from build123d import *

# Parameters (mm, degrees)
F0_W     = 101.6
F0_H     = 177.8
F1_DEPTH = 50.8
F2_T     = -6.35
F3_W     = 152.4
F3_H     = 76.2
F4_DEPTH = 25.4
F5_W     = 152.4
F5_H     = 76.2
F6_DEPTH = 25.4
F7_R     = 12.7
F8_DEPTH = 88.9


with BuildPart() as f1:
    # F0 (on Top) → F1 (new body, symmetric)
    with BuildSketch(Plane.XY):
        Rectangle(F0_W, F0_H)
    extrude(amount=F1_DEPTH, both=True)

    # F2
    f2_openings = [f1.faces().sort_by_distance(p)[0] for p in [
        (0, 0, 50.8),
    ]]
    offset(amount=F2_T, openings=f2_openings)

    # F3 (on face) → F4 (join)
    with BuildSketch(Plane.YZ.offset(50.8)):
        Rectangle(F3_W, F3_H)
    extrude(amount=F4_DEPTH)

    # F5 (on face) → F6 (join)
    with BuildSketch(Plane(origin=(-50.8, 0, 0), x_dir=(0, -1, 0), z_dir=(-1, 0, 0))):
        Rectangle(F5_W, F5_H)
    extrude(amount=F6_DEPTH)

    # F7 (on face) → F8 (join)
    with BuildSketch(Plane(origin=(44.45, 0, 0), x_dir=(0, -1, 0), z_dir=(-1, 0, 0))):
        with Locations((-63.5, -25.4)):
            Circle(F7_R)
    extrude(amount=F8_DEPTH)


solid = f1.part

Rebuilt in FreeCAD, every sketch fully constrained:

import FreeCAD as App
import Part
import Sketcher
Q = App.Units.Quantity


def faces_at(feature, points):
    """Names of the faces that lie closest to the given points."""
    faces = feature.Shape.Faces
    near = lambda p: min(range(len(faces)), key=lambda i: faces[i].distToShape(Part.Vertex(*p))[0])
    return sorted({f"Face{near(p) + 1}" for p in points})


def add_polygon(sketch, points):
    """Adds a closed chain of lines whose ends are joined by coincident constraints."""
    first, n = sketch.GeometryCount, len(points)
    for a, b in zip(points, points[1:] + points[:1]):
        sketch.addGeometry(Part.LineSegment(App.Vector(*a, 0), App.Vector(*b, 0)), False)
    for i in range(n):
        sketch.addConstraint(Sketcher.Constraint("Coincident", first + i, 2, first + (i + 1) % n, 1))

doc = App.newDocument("Part")
body = doc.addObject("PartDesign::Body", "Body")

# Sketch on XY plane
sketch1 = doc.addObject("Sketcher::SketchObject", "Sketch")
body.addObject(sketch1)
sketch1.AttachmentSupport = (doc.XY_Plane, [""])
sketch1.MapMode = "FlatFace"
add_polygon(sketch1, [(-51, 89), (-51, -89), (51, -89), (51, 89)])  # lines 0-3
sketch1.addConstraint(Sketcher.Constraint("Vertical", 0))
sketch1.addConstraint(Sketcher.Constraint("Horizontal", 1))
sketch1.addConstraint(Sketcher.Constraint("Vertical", 2))
sketch1.addConstraint(Sketcher.Constraint("Horizontal", 3))
sketch1.addConstraint(Sketcher.Constraint("Symmetric", 0, 2, 2, 2, -1, 1))
sketch1.addConstraint(Sketcher.Constraint("DistanceX", 1, 1, 1, 2, Q("4 in")))
sketch1.addConstraint(Sketcher.Constraint("DistanceY", 0, 2, 0, 1, Q("7 in")))
pad1 = doc.addObject("PartDesign::Pad", "Pad")
body.addObject(pad1)
pad1.Profile = sketch1
pad1.Length = Q("4 in")
pad1.Midplane = True
doc.recompute()

thickness = doc.addObject("PartDesign::Thickness", "Thickness")
body.addObject(thickness)
thickness.Base = (pad1, faces_at(pad1, [(0, 0, 50.8)]))
thickness.Value = Q("0.25 in")
thickness.Reversed = True
thickness.Join = "Arc"

# Sketch on YZ plane
sketch2 = doc.addObject("Sketcher::SketchObject", "Sketch001")
body.addObject(sketch2)
sketch2.AttachmentSupport = (doc.YZ_Plane, [""])
sketch2.MapMode = "FlatFace"
sketch2.AttachmentOffset = App.Placement(App.Vector(0, 0, 2 * 25.4), App.Rotation())
add_polygon(sketch2, [(-76, 38), (-76, -38), (76, -38), (76, 38)])  # lines 0-3
sketch2.addConstraint(Sketcher.Constraint("Vertical", 0))
sketch2.addConstraint(Sketcher.Constraint("Horizontal", 1))
sketch2.addConstraint(Sketcher.Constraint("Vertical", 2))
sketch2.addConstraint(Sketcher.Constraint("Horizontal", 3))
sketch2.addConstraint(Sketcher.Constraint("Symmetric", 0, 2, 2, 2, -1, 1))
sketch2.addConstraint(Sketcher.Constraint("DistanceX", 1, 1, 1, 2, Q("6 in")))
sketch2.addConstraint(Sketcher.Constraint("DistanceY", 0, 2, 0, 1, Q("3 in")))
pad2 = doc.addObject("PartDesign::Pad", "Pad001")
body.addObject(pad2)
pad2.Profile = sketch2
pad2.Length = Q("1 in")

# Sketch on YZ plane
sketch3 = doc.addObject("Sketcher::SketchObject", "Sketch002")
body.addObject(sketch3)
sketch3.AttachmentSupport = (doc.YZ_Plane, [""])
sketch3.MapMode = "FlatFace"
sketch3.AttachmentOffset = App.Placement(App.Vector(0, 0, -2 * 25.4), App.Rotation())
add_polygon(sketch3, [(76, 38), (76, -38), (-76, -38), (-76, 38)])  # lines 0-3
sketch3.addConstraint(Sketcher.Constraint("Vertical", 0))
sketch3.addConstraint(Sketcher.Constraint("Horizontal", 1))
sketch3.addConstraint(Sketcher.Constraint("Vertical", 2))
sketch3.addConstraint(Sketcher.Constraint("Horizontal", 3))
sketch3.addConstraint(Sketcher.Constraint("Symmetric", 0, 2, 2, 2, -1, 1))
sketch3.addConstraint(Sketcher.Constraint("DistanceX", 1, 2, 1, 1, Q("6 in")))
sketch3.addConstraint(Sketcher.Constraint("DistanceY", 0, 2, 0, 1, Q("3 in")))
pad3 = doc.addObject("PartDesign::Pad", "Pad002")
body.addObject(pad3)
pad3.Profile = sketch3
pad3.Length = Q("1 in")
pad3.Reversed = True

# Sketch on YZ plane
sketch4 = doc.addObject("Sketcher::SketchObject", "Sketch003")
body.addObject(sketch4)
sketch4.AttachmentSupport = (doc.YZ_Plane, [""])
sketch4.MapMode = "FlatFace"
sketch4.AttachmentOffset = App.Placement(App.Vector(0, 0, 1.75 * 25.4), App.Rotation())
sketch4.addGeometry(Part.Circle(App.Vector(64, -25, 0), App.Vector(0, 0, 1), 13), False)
sketch4.addConstraint(Sketcher.Constraint("Diameter", 0, Q("1 in")))
sketch4.addConstraint(Sketcher.Constraint("DistanceY", 0, 3, -1, 1, Q("1 in")))
sketch4.addConstraint(Sketcher.Constraint("DistanceX", -1, 1, 0, 3, Q("2.5 in")))
pad4 = doc.addObject("PartDesign::Pad", "Pad003")
body.addObject(pad4)
pad4.Profile = sketch4
pad4.Length = Q("3.5 in")
pad4.Reversed = True

doc.recompute()
